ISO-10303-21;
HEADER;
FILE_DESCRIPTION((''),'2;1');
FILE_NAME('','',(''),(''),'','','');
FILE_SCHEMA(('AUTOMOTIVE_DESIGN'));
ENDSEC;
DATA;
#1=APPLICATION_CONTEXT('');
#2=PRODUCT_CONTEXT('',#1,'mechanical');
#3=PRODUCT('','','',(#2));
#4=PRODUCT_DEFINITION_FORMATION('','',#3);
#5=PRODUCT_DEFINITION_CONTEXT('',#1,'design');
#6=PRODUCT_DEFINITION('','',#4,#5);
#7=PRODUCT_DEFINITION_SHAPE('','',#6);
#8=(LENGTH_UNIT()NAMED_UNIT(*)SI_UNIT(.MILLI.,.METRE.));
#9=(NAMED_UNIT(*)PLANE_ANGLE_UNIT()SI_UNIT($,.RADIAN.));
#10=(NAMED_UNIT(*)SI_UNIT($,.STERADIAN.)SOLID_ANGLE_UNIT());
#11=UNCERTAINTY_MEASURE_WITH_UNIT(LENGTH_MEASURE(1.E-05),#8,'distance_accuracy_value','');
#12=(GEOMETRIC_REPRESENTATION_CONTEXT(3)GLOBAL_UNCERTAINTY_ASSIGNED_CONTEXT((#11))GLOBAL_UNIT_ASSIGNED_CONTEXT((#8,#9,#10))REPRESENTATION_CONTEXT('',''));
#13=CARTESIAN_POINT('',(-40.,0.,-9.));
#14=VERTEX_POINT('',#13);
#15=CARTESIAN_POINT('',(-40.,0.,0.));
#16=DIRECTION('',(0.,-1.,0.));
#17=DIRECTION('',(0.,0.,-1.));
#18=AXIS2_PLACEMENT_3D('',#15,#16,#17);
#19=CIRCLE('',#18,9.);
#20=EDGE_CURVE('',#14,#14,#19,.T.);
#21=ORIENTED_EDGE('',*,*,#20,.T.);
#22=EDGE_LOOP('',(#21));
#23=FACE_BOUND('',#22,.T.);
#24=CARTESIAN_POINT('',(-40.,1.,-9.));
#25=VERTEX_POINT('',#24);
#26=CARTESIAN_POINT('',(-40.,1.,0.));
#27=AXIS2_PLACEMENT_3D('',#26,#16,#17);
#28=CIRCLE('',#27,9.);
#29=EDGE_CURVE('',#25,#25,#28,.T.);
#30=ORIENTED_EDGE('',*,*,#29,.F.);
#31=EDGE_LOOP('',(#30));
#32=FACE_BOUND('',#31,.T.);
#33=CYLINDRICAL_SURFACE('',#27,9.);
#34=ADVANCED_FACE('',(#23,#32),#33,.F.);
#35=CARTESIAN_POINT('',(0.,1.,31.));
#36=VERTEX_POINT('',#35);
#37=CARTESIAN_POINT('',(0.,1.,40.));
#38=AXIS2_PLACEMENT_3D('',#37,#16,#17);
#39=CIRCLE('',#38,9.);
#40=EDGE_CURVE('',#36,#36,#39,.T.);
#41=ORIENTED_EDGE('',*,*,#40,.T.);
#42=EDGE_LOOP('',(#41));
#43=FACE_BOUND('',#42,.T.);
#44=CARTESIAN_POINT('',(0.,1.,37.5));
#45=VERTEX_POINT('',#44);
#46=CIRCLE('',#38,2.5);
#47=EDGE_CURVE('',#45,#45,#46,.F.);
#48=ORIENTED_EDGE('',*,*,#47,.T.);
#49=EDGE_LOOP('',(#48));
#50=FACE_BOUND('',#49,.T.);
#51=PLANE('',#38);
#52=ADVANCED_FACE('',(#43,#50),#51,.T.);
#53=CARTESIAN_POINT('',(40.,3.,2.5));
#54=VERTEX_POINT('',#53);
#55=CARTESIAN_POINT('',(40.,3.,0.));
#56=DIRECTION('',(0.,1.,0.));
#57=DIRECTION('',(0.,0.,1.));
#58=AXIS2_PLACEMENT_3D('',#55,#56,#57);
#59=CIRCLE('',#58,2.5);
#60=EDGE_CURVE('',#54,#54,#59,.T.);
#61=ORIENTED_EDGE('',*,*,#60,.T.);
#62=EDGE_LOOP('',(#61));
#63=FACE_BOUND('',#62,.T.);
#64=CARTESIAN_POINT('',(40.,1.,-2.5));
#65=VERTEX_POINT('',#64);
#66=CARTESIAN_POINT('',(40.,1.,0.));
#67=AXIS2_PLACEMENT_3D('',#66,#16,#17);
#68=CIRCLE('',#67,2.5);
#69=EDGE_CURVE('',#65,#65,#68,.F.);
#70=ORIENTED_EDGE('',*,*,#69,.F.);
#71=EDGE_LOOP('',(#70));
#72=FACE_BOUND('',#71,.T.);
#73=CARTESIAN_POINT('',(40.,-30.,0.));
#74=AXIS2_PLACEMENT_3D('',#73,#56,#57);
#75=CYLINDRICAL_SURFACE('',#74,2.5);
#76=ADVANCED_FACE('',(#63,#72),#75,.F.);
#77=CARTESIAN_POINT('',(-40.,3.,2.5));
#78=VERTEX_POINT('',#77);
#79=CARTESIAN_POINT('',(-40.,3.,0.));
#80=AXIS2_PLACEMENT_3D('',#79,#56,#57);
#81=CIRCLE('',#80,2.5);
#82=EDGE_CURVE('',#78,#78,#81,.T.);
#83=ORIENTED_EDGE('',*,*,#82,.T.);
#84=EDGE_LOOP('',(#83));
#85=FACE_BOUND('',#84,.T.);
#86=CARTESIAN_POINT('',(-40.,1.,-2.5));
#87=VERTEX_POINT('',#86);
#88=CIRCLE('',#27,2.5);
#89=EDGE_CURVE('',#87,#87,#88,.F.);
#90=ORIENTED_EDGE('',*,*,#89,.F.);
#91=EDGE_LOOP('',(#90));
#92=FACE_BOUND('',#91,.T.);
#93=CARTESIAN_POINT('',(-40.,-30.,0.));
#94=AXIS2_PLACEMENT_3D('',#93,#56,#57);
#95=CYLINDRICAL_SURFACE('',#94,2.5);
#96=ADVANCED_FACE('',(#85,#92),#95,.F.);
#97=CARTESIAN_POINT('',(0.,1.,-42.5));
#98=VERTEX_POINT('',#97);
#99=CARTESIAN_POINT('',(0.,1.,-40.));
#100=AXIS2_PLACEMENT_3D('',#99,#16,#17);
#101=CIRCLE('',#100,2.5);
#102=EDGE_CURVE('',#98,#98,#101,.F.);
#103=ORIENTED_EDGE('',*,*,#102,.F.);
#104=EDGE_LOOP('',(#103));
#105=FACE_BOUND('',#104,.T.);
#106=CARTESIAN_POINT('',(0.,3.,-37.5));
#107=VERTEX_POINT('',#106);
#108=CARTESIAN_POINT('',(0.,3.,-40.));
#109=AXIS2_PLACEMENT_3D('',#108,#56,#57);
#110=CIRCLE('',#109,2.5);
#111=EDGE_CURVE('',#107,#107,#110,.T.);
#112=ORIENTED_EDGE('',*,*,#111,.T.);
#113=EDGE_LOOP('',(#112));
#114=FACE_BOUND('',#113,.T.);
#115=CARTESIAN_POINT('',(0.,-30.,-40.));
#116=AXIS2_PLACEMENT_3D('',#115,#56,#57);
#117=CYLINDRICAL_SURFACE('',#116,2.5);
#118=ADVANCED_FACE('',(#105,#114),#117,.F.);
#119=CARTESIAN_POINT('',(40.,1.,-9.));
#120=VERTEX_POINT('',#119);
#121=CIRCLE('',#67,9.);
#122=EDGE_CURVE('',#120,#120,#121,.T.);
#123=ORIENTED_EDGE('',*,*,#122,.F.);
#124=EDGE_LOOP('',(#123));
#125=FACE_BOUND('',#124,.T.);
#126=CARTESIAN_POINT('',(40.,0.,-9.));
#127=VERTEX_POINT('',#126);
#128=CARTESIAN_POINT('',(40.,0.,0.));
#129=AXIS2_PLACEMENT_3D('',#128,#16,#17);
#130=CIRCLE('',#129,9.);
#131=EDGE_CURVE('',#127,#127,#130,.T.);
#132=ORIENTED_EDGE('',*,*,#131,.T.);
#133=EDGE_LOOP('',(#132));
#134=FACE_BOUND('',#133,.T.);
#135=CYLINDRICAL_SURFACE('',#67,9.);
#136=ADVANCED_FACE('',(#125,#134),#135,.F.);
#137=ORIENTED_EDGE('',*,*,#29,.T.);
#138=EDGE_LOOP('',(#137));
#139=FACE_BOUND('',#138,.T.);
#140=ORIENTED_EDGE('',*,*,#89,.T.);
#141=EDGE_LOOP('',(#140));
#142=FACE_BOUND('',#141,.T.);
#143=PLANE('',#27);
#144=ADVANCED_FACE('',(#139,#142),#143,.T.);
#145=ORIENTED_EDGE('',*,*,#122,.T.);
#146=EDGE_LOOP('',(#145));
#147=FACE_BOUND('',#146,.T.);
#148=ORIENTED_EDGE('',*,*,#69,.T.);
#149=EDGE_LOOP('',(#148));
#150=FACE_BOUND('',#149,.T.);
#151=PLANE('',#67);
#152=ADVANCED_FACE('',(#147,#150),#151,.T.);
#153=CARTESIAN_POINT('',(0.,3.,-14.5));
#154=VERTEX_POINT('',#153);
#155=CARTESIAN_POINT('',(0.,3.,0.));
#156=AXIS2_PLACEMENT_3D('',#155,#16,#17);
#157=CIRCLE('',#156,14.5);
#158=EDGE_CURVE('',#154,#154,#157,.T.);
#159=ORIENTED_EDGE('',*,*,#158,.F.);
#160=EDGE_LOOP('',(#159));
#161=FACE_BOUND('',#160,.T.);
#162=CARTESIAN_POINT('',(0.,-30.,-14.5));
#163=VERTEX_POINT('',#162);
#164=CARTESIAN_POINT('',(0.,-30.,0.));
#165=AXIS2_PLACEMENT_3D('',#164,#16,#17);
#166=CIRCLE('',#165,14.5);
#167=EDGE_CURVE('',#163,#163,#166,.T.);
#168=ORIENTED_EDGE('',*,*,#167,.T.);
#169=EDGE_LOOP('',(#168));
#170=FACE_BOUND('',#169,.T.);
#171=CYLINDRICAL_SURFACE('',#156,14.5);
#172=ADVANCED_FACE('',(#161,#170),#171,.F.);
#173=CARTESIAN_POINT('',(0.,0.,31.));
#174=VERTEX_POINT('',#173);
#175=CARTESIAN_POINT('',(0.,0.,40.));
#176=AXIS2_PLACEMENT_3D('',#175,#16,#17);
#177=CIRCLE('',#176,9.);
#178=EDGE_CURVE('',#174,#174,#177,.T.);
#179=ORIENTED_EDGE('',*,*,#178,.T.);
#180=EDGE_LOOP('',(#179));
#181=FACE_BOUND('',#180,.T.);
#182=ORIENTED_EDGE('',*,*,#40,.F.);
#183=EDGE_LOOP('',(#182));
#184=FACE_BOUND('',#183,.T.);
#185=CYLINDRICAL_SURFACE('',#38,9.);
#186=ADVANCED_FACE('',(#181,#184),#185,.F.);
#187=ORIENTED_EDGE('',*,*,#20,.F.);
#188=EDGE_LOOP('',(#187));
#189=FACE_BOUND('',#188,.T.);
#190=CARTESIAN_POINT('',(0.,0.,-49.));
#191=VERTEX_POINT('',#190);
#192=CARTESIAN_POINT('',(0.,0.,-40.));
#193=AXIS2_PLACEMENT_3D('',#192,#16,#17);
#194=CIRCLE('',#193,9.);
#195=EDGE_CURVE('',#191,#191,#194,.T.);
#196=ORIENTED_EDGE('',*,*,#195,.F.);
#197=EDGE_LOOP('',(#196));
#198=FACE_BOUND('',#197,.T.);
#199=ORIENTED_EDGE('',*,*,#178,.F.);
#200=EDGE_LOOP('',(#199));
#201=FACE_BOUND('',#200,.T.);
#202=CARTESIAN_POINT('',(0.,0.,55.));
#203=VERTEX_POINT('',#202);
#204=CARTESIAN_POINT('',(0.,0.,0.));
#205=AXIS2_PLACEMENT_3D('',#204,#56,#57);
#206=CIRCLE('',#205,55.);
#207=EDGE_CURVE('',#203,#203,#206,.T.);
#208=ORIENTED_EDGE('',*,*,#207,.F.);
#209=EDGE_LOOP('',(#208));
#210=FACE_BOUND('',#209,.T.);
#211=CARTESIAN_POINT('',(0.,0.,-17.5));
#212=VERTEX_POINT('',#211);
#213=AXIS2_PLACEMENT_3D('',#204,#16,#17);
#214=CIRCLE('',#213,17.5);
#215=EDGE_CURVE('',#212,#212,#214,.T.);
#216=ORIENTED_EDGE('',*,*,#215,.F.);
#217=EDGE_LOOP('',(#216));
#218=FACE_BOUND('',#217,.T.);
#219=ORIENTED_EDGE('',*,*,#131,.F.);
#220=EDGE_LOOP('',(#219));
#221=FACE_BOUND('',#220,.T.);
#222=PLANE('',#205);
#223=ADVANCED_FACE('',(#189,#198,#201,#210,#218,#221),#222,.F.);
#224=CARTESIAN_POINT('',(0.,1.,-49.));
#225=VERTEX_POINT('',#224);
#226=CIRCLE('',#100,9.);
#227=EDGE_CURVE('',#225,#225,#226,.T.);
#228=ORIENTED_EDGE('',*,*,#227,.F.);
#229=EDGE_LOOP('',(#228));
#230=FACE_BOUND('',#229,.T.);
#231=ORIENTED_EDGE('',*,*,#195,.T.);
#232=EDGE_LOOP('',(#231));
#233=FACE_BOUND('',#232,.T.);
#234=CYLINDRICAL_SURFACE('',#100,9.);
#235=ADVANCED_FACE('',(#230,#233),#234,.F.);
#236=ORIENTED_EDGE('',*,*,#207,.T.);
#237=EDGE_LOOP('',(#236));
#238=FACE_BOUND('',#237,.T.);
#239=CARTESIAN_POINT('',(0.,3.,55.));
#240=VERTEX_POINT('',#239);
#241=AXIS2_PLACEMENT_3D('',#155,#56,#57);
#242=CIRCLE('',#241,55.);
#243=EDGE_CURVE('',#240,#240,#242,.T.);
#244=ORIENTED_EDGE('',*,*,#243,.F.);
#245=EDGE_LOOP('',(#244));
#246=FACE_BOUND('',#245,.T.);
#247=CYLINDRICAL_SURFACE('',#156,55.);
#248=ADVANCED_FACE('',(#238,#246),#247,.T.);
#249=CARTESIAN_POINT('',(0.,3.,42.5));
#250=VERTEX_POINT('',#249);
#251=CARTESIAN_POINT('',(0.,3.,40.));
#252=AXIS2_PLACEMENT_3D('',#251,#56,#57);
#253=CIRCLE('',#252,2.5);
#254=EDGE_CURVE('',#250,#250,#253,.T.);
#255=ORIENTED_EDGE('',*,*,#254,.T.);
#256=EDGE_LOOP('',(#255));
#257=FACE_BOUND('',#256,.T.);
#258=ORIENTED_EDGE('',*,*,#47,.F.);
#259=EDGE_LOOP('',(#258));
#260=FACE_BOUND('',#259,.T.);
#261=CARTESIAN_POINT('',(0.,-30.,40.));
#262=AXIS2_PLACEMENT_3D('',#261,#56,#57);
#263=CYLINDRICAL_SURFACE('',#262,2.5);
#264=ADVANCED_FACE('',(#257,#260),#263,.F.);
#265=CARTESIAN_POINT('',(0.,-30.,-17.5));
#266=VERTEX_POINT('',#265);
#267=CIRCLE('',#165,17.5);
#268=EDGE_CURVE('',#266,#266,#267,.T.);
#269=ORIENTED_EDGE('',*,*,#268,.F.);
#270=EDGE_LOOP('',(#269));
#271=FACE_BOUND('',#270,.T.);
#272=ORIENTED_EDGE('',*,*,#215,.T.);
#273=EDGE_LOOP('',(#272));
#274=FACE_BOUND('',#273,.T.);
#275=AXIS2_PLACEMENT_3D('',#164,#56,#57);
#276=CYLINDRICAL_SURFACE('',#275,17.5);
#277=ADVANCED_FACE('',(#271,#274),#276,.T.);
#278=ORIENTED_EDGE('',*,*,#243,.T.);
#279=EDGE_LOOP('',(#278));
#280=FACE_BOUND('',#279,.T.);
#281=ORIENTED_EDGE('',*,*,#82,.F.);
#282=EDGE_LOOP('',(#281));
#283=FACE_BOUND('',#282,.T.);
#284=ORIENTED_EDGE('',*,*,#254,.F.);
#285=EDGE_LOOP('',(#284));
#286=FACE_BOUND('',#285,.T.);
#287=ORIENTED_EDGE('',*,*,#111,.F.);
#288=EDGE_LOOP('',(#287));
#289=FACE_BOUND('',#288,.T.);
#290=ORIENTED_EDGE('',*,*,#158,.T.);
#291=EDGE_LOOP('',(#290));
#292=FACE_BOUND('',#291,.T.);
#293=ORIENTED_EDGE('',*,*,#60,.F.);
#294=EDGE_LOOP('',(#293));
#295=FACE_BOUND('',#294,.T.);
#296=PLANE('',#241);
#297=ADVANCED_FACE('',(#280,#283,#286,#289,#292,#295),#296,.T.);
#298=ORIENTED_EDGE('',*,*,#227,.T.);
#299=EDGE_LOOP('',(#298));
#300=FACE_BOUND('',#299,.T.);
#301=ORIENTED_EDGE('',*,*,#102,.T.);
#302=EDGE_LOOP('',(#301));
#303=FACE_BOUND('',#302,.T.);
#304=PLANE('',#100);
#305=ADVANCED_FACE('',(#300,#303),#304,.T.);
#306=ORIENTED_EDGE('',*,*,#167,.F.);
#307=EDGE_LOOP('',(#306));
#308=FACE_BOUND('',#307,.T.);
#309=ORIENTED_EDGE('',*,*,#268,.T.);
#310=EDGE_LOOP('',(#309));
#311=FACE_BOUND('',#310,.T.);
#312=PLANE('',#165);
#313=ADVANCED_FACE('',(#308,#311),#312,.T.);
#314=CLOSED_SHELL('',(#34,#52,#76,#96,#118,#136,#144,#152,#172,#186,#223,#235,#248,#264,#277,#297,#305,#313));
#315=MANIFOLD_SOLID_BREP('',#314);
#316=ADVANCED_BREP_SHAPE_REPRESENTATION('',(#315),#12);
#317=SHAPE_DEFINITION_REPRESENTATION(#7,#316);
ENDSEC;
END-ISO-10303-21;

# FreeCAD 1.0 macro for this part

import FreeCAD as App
import Part
import Sketcher
from FreeCAD import Vector

doc = App.newDocument("Part")
body = doc.addObject("PartDesign::Body", "Body")

sketch1 = body.newObject("Sketcher::SketchObject", "Sketch")
sketch1.AttachmentSupport = (doc.getObject("XZ_Plane"), [""])
sketch1.MapMode = "FlatFace"
sketch1.addGeometry(Part.Circle(Vector(0, 0, 0), Vector(0, 0, 1), 55), False)
sketch1.addConstraint(Sketcher.Constraint("Coincident", 0, 3, -1, 1))
sketch1.addConstraint(Sketcher.Constraint("Diameter", 0, 110.0))
pad1 = body.newObject("PartDesign::Pad", "Pad")
pad1.Profile = sketch1
pad1.Length = 3
pad1.Reversed = True

sketch2 = body.newObject("Sketcher::SketchObject", "Sketch001")
sketch2.AttachmentSupport = (doc.getObject("XZ_Plane"), [""])
sketch2.MapMode = "FlatFace"
sketch2.addGeometry(Part.Circle(Vector(0, 0, 0), Vector(0, 0, 1), 18), False)
sketch2.addConstraint(Sketcher.Constraint("Coincident", 0, 3, -1, 1))
sketch2.addConstraint(Sketcher.Constraint("Diameter", 0, 35.0))
pad2 = body.newObject("PartDesign::Pad", "Pad001")
pad2.Profile = sketch2
pad2.Length = 30

sketch3 = body.newObject("Sketcher::SketchObject", "Sketch002")
sketch3.AttachmentSupport = (doc.getObject("XZ_Plane"), [""])
sketch3.MapMode = "FlatFace"
sketch3.AttachmentOffset = App.Placement(Vector(0, 0, 30), App.Rotation())
sketch3.addGeometry(Part.Circle(Vector(0, 0, 0), Vector(0, 0, 1), 14), False)
sketch3.addConstraint(Sketcher.Constraint("Coincident", 0, 3, -1, 1))
sketch3.addConstraint(Sketcher.Constraint("Diameter", 0, 29.0))
pocket1 = body.newObject("PartDesign::Pocket", "Pocket")
pocket1.Profile = sketch3
pocket1.Type = "ThroughAll"

sketch4 = body.newObject("Sketcher::SketchObject", "Sketch003")
sketch4.AttachmentSupport = (doc.getObject("XZ_Plane"), [""])
sketch4.MapMode = "FlatFace"
sketch4.AttachmentOffset = App.Placement(Vector(0, 0, -3), App.Rotation())
sketch4.addGeometry(Part.Circle(Vector(0, -40, 0), Vector(0, 0, 1), 2.5), False)
sketch4.addGeometry(Part.Circle(Vector(40, 0, 0), Vector(0, 0, 1), 2.5), False)
sketch4.addGeometry(Part.Circle(Vector(0, 40, 0), Vector(0, 0, 1), 2.5), False)
sketch4.addGeometry(Part.Circle(Vector(-40, 0, 0), Vector(0, 0, 1), 2.5), False)
sketch4.addConstraint(Sketcher.Constraint("Equal", 0, 1))
sketch4.addConstraint(Sketcher.Constraint("Equal", 1, 2))
sketch4.addConstraint(Sketcher.Constraint("Equal", 2, 3))
sketch4.addConstraint(Sketcher.Constraint("Symmetric", 0, 3, 2, 3, -1, 1))
sketch4.addConstraint(Sketcher.Constraint("Symmetric", 1, 3, 3, 3, -1, 1))
sketch4.addConstraint(Sketcher.Constraint("PointOnObject", 0, 3, -2))
sketch4.addConstraint(Sketcher.Constraint("PointOnObject", 1, 3, -1))
sketch4.addConstraint(Sketcher.Constraint("Diameter", 0, 5.0))
sketch4.addConstraint(Sketcher.Constraint("DistanceY", 0, 3, -1, 1, 40.0))
sketch4.addConstraint(Sketcher.Constraint("DistanceX", -1, 1, 1, 3, 40.0))
pocket2 = body.newObject("PartDesign::Pocket", "Pocket001")
pocket2.Profile = sketch4
pocket2.Type = "ThroughAll"
pocket2.Reversed = True

sketch5 = body.newObject("Sketcher::SketchObject", "Sketch004")
sketch5.AttachmentSupport = (doc.getObject("XZ_Plane"), [""])
sketch5.MapMode = "FlatFace"
sketch5.addGeometry(Part.Circle(Vector(0, 40, 0), Vector(0, 0, 1), 9), False)
sketch5.addGeometry(Part.Circle(Vector(40, 0, 0), Vector(0, 0, 1), 9), False)
sketch5.addGeometry(Part.Circle(Vector(0, -40, 0), Vector(0, 0, 1), 9), False)
sketch5.addGeometry(Part.Circle(Vector(-40, 0, 0), Vector(0, 0, 1), 9), False)
sketch5.addConstraint(Sketcher.Constraint("Equal", 0, 1))
sketch5.addConstraint(Sketcher.Constraint("Equal", 1, 2))
sketch5.addConstraint(Sketcher.Constraint("Equal", 2, 3))
sketch5.addConstraint(Sketcher.Constraint("Symmetric", 0, 3, 2, 3, -1, 1))
sketch5.addConstraint(Sketcher.Constraint("Symmetric", 1, 3, 3, 3, -1, 1))
sketch5.addConstraint(Sketcher.Constraint("PointOnObject", 0, 3, -2))
sketch5.addConstraint(Sketcher.Constraint("PointOnObject", 1, 3, -1))
sketch5.addConstraint(Sketcher.Constraint("Diameter", 0, 18.0))
sketch5.addConstraint(Sketcher.Constraint("DistanceY", -1, 1, 0, 3, 40.0))
sketch5.addConstraint(Sketcher.Constraint("DistanceX", -1, 1, 1, 3, 40.0))
pocket3 = body.newObject("PartDesign::Pocket", "Pocket002")
pocket3.Profile = sketch5
pocket3.Length = 1

doc.recompute()
